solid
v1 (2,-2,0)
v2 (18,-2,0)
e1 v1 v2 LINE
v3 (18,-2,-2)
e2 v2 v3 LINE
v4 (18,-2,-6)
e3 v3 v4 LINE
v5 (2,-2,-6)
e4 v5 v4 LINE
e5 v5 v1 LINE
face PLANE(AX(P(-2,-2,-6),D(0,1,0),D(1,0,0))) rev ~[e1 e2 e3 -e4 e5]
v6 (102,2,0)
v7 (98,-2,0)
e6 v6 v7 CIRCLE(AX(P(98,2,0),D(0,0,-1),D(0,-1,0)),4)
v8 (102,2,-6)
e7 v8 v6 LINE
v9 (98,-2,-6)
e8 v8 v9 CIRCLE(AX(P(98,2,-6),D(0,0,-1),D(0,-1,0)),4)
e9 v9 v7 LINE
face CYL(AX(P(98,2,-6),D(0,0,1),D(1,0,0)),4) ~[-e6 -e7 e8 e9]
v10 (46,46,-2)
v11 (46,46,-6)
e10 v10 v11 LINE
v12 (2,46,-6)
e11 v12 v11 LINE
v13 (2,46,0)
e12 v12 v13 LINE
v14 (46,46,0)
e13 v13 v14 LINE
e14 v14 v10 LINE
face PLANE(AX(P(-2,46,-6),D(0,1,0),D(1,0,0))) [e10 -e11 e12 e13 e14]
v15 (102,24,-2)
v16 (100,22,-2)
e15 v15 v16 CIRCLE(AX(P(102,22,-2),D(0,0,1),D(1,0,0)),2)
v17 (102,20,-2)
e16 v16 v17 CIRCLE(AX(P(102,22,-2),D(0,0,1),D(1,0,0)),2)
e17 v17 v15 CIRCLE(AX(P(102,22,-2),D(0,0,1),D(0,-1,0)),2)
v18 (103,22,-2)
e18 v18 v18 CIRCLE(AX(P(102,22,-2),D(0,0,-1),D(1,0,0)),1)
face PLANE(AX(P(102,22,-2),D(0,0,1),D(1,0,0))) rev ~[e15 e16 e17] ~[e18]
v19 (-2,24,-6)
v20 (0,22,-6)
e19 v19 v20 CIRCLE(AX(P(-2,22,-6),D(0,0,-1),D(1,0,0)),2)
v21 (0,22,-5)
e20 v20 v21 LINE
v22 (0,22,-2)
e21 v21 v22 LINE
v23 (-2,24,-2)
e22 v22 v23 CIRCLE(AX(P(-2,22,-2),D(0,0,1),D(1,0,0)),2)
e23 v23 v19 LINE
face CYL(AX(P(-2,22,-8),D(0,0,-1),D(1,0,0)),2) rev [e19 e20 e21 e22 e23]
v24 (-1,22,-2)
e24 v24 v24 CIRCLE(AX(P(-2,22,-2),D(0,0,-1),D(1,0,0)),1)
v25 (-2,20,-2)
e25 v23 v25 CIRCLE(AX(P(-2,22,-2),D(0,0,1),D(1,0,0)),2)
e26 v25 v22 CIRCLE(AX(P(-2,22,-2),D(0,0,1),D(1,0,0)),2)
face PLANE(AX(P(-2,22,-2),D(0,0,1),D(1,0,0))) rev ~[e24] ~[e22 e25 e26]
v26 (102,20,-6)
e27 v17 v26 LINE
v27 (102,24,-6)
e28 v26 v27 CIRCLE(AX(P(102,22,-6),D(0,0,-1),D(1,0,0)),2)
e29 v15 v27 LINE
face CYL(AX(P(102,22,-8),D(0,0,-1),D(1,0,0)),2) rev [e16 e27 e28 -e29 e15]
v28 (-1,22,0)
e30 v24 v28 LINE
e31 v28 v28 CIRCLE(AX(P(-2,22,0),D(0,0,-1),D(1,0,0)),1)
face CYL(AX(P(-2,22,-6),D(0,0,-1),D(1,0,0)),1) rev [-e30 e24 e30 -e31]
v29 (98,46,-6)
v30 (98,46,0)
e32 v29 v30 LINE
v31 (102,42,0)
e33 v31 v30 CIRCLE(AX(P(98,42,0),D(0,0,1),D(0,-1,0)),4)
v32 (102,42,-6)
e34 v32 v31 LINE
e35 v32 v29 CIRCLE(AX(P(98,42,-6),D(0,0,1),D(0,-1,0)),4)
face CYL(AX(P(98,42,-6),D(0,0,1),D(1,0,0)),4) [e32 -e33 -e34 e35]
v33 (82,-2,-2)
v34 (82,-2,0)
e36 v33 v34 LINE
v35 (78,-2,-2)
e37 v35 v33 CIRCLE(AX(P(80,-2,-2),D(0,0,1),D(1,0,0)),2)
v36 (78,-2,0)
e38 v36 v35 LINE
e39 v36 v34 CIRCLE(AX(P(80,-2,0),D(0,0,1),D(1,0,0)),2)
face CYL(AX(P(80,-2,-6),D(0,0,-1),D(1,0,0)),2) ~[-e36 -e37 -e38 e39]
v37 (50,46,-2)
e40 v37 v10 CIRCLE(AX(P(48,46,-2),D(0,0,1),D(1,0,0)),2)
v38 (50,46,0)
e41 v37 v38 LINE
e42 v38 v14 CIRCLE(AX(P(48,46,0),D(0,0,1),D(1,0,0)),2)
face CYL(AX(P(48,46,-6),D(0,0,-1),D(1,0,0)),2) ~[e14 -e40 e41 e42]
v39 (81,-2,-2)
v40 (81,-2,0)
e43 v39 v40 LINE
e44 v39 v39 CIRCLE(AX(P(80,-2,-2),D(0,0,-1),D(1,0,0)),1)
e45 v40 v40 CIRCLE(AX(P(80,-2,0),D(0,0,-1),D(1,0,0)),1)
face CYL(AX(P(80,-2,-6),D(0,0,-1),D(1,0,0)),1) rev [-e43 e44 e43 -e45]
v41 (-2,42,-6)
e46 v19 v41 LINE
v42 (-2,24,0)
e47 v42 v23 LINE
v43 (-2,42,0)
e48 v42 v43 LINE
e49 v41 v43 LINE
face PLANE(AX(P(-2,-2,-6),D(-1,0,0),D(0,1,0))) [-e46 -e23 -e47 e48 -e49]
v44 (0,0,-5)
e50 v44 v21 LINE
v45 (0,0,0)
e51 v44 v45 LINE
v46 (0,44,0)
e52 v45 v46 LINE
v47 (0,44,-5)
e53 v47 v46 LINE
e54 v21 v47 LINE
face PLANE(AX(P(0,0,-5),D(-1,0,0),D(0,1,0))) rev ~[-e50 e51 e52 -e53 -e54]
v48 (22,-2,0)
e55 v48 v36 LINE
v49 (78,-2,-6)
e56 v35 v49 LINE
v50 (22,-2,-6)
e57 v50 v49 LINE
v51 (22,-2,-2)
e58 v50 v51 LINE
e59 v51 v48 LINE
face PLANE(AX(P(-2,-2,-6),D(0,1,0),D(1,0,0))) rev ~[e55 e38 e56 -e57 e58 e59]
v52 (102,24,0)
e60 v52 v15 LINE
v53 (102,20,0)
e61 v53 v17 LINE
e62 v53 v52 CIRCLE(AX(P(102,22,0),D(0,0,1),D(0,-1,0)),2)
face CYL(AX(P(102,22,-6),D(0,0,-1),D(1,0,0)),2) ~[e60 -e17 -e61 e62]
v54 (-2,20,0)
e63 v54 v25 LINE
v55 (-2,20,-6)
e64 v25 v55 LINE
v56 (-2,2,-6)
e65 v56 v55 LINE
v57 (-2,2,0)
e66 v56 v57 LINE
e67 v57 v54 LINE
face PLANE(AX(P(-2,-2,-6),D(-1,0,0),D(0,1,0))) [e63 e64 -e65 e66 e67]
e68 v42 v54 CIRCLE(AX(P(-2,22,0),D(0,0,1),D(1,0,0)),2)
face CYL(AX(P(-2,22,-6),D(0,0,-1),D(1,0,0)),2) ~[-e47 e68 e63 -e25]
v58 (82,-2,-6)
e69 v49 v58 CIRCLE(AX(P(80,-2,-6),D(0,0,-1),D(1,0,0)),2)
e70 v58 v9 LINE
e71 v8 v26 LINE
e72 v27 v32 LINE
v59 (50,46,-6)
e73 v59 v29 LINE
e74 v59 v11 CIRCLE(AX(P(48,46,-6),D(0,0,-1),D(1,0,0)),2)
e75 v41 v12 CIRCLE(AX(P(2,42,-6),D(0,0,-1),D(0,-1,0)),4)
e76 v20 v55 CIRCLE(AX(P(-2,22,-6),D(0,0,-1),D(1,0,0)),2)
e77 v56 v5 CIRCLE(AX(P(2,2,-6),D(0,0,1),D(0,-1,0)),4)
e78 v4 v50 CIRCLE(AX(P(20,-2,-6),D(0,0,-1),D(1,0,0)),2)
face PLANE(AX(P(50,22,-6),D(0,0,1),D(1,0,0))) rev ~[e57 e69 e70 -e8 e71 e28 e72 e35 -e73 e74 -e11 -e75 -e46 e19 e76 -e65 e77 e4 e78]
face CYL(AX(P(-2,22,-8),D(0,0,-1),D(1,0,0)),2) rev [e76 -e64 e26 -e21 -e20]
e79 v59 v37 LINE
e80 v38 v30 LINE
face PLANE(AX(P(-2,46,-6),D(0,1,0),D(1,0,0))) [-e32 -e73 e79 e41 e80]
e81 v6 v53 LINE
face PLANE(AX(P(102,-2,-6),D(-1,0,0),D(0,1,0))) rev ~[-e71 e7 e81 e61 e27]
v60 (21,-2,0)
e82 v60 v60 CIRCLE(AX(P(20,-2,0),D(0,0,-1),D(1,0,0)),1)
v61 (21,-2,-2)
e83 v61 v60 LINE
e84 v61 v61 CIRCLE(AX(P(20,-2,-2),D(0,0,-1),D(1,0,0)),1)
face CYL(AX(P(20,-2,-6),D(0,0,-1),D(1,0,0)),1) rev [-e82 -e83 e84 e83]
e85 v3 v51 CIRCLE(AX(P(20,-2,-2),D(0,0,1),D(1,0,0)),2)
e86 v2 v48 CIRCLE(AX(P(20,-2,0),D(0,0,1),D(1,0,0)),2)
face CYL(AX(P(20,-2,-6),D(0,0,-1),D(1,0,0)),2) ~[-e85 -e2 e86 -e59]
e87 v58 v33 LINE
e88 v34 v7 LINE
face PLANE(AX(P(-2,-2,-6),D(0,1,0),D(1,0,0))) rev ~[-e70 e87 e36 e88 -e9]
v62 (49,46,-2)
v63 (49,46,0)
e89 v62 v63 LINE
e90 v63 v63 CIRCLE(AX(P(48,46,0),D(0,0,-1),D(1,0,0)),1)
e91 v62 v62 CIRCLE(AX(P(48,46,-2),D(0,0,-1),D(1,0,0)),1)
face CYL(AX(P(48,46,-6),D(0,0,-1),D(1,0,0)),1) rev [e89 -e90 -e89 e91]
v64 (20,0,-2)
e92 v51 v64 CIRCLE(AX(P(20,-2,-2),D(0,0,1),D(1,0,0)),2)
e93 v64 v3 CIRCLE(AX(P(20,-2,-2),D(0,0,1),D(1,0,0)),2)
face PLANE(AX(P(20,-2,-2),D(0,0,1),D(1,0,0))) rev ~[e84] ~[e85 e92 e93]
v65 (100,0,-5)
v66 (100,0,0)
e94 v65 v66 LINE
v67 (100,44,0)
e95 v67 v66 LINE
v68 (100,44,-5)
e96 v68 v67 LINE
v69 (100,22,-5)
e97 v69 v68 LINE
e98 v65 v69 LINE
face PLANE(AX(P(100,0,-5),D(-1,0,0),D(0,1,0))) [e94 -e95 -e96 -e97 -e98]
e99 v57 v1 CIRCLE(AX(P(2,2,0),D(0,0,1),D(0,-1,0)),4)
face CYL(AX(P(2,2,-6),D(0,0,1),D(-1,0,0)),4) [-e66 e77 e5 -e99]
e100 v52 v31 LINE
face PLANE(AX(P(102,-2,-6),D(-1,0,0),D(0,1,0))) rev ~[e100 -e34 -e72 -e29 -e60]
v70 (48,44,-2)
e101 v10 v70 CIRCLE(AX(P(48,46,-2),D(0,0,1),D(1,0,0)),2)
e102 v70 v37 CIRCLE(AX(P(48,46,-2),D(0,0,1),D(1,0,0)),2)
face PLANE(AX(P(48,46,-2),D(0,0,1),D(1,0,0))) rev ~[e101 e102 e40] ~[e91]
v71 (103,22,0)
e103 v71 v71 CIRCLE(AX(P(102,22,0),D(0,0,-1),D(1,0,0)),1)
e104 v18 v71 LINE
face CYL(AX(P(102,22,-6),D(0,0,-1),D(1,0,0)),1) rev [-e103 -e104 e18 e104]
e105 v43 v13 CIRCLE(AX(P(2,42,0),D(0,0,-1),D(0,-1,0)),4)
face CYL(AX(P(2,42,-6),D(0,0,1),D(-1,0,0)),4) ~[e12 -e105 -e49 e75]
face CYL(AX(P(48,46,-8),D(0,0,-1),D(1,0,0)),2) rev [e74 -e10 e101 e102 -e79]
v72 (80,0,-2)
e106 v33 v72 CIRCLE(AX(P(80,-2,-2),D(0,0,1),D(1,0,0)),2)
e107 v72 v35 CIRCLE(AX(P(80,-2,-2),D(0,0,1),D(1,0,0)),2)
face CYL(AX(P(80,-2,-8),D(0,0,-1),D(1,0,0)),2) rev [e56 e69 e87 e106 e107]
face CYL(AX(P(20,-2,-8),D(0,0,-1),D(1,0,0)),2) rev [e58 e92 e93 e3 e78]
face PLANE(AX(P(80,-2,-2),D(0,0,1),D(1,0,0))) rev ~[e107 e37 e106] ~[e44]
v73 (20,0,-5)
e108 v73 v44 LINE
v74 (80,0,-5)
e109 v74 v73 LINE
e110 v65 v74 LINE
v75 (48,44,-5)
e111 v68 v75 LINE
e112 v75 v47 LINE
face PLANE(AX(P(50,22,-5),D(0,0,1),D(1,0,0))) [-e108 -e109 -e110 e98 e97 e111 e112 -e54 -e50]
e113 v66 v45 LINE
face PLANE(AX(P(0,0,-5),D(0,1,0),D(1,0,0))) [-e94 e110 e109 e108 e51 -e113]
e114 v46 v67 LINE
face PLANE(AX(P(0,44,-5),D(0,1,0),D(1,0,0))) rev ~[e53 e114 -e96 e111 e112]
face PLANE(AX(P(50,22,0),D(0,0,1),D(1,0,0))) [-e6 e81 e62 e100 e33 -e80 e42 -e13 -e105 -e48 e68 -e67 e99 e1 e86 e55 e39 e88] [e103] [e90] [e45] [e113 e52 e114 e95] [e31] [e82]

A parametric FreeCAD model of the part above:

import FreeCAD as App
import Part
import Sketcher


def edges_at(feature, points):
    """Names of the edges that pass closest to the given points."""
    edges = feature.Shape.Edges
    near = lambda p: min(range(len(edges)), key=lambda i: edges[i].distToShape(Part.Vertex(*p))[0])
    return sorted({f"Edge{near(p) + 1}" for p in points})

doc = App.newDocument("Part")
body = doc.addObject("PartDesign::Body", "Body")

# Sketch on XY plane
sketch1 = body.newObject("Sketcher::SketchObject", "Sketch")
sketch1.AttachmentSupport = (doc.getObject("XY_Plane"), [""])
sketch1.MapMode = "FlatFace"
sketch1.addGeometry(Part.Circle(App.Vector(-2, 22, 0), App.Vector(0, 0, 1), 2), False)
sketch1.addConstraint([
    Sketcher.Constraint("Diameter", 0, 4.0),
    Sketcher.Constraint("DistanceX", 0, 3, -1, 1, 2.0),
    Sketcher.Constraint("DistanceY", -1, 1, 0, 3, 22.0),
])
pad1 = body.newObject("PartDesign::Pad", "Pad")
pad1.Profile = sketch1
pad1.Length = 6
body2 = doc.addObject("PartDesign::Body", "Body001")

# Sketch on XY plane
sketch2 = body2.newObject("Sketcher::SketchObject", "Sketch001")
sketch2.AttachmentSupport = (doc.getObject("XY_Plane001"), [""])
sketch2.MapMode = "FlatFace"
sketch2.addGeometry(Part.Circle(App.Vector(48, 46, 0), App.Vector(0, 0, 1), 2), False)
sketch2.addConstraint([
    Sketcher.Constraint("Diameter", 0, 4.0),
    Sketcher.Constraint("DistanceX", -1, 1, 0, 3, 48.0),
    Sketcher.Constraint("DistanceY", -1, 1, 0, 3, 46.0),
])
pad2 = body2.newObject("PartDesign::Pad", "Pad001")
pad2.Profile = sketch2
pad2.Length = 6
body3 = doc.addObject("PartDesign::Body", "Body002")

# Sketch on XY plane
sketch3 = body3.newObject("Sketcher::SketchObject", "Sketch002")
sketch3.AttachmentSupport = (doc.getObject("XY_Plane002"), [""])
sketch3.MapMode = "FlatFace"
sketch3.addGeometry(Part.Circle(App.Vector(102, 22, 0), App.Vector(0, 0, 1), 2), False)
sketch3.addConstraint([
    Sketcher.Constraint("Diameter", 0, 4.0),
    Sketcher.Constraint("DistanceX", -1, 1, 0, 3, 102.0),
    Sketcher.Constraint("DistanceY", -1, 1, 0, 3, 22.0),
])
pad3 = body3.newObject("PartDesign::Pad", "Pad002")
pad3.Profile = sketch3
pad3.Length = 6
body4 = doc.addObject("PartDesign::Body", "Body003")

# Sketch on XY plane
sketch4 = body4.newObject("Sketcher::SketchObject", "Sketch003")
sketch4.AttachmentSupport = (doc.getObject("XY_Plane003"), [""])
sketch4.MapMode = "FlatFace"
sketch4.addGeometry(Part.Circle(App.Vector(80, -2, 0), App.Vector(0, 0, 1), 2), False)
sketch4.addConstraint([
    Sketcher.Constraint("Diameter", 0, 4.0),
    Sketcher.Constraint("DistanceX", -1, 1, 0, 3, 80.0),
    Sketcher.Constraint("DistanceY", 0, 3, -1, 1, 2.0),
])
pad4 = body4.newObject("PartDesign::Pad", "Pad003")
pad4.Profile = sketch4
pad4.Length = 6
body5 = doc.addObject("PartDesign::Body", "Body004")
body5.AllowCompound = True

# Sketch on XY plane
sketch5 = body5.newObject("Sketcher::SketchObject", "Sketch004")
sketch5.AttachmentSupport = (doc.getObject("XY_Plane004"), [""])
sketch5.MapMode = "FlatFace"
sketch5.addGeometry(Part.Circle(App.Vector(20, -2, 0), App.Vector(0, 0, 1), 2), False)
sketch5.addConstraint([
    Sketcher.Constraint("Diameter", 0, 4.0),
    Sketcher.Constraint("DistanceX", -1, 1, 0, 3, 20.0),
    Sketcher.Constraint("DistanceY", 0, 3, -1, 1, 2.0),
])
pad5 = body5.newObject("PartDesign::Pad", "Pad004")
pad5.Profile = sketch5
pad5.Length = 6
doc.recompute()

boolean = body5.newObject("PartDesign::Boolean", "Boolean")
boolean.Type = "Fuse"
boolean.addObjects([body])
doc.recompute()

boolean2 = body5.newObject("PartDesign::Boolean", "Boolean001")
boolean2.Type = "Fuse"
boolean2.addObjects([body2])
doc.recompute()

boolean3 = body5.newObject("PartDesign::Boolean", "Boolean002")
boolean3.Type = "Fuse"
boolean3.addObjects([body3])
doc.recompute()

boolean4 = body5.newObject("PartDesign::Boolean", "Boolean003")
boolean4.Type = "Fuse"
boolean4.addObjects([body4])
body6 = doc.addObject("PartDesign::Body", "Body005")
body6.AllowCompound = True
doc.recompute()

body5.Placement = App.Placement(App.Vector(0, 0, -8), App.Rotation(App.Vector(0, 0, 1), 0))
boolean5 = body6.newObject("PartDesign::Boolean", "Boolean004")
boolean5.Type = "Fuse"
boolean5.addObjects([body5])
body7 = doc.addObject("PartDesign::Body", "Body006")

# Sketch on XY plane
sketch6 = body7.newObject("Sketcher::SketchObject", "Sketch005")
sketch6.AttachmentSupport = (doc.getObject("XY_Plane006"), [""])
sketch6.MapMode = "FlatFace"
sketch6.addGeometry(Part.Circle(App.Vector(-2, 22, 0), App.Vector(0, 0, 1), 1), False)
sketch6.addConstraint([
    Sketcher.Constraint("Diameter", 0, 2.0),
    Sketcher.Constraint("DistanceX", 0, 3, -1, 1, 2.0),
    Sketcher.Constraint("DistanceY", -1, 1, 0, 3, 22.0),
])
pad6 = body7.newObject("PartDesign::Pad", "Pad005")
pad6.Profile = sketch6
pad6.Length = 13
body8 = doc.addObject("PartDesign::Body", "Body007")

# Sketch on XY plane
sketch7 = body8.newObject("Sketcher::SketchObject", "Sketch006")
sketch7.AttachmentSupport = (doc.getObject("XY_Plane007"), [""])
sketch7.MapMode = "FlatFace"
sketch7.addGeometry(Part.Circle(App.Vector(48, 46, 0), App.Vector(0, 0, 1), 1), False)
sketch7.addConstraint([
    Sketcher.Constraint("Diameter", 0, 2.0),
    Sketcher.Constraint("DistanceX", -1, 1, 0, 3, 48.0),
    Sketcher.Constraint("DistanceY", -1, 1, 0, 3, 46.0),
])
pad7 = body8.newObject("PartDesign::Pad", "Pad006")
pad7.Profile = sketch7
pad7.Length = 13
body9 = doc.addObject("PartDesign::Body", "Body008")

# Sketch on XY plane
sketch8 = body9.newObject("Sketcher::SketchObject", "Sketch007")
sketch8.AttachmentSupport = (doc.getObject("XY_Plane008"), [""])
sketch8.MapMode = "FlatFace"
sketch8.addGeometry(Part.Circle(App.Vector(102, 22, 0), App.Vector(0, 0, 1), 1), False)
sketch8.addConstraint([
    Sketcher.Constraint("Diameter", 0, 2.0),
    Sketcher.Constraint("DistanceX", -1, 1, 0, 3, 102.0),
    Sketcher.Constraint("DistanceY", -1, 1, 0, 3, 22.0),
])
pad8 = body9.newObject("PartDesign::Pad", "Pad007")
pad8.Profile = sketch8
pad8.Length = 13
body10 = doc.addObject("PartDesign::Body", "Body009")

# Sketch on XY plane
sketch9 = body10.newObject("Sketcher::SketchObject", "Sketch008")
sketch9.AttachmentSupport = (doc.getObject("XY_Plane009"), [""])
sketch9.MapMode = "FlatFace"
sketch9.addGeometry(Part.Circle(App.Vector(80, -2, 0), App.Vector(0, 0, 1), 1), False)
sketch9.addConstraint([
    Sketcher.Constraint("Diameter", 0, 2.0),
    Sketcher.Constraint("DistanceX", -1, 1, 0, 3, 80.0),
    Sketcher.Constraint("DistanceY", 0, 3, -1, 1, 2.0),
])
pad9 = body10.newObject("PartDesign::Pad", "Pad008")
pad9.Profile = sketch9
pad9.Length = 13
body11 = doc.addObject("PartDesign::Body", "Body010")
body11.AllowCompound = True

# Sketch on XY plane
sketch10 = body11.newObject("Sketcher::SketchObject", "Sketch009")
sketch10.AttachmentSupport = (doc.getObject("XY_Plane010"), [""])
sketch10.MapMode = "FlatFace"
sketch10.addGeometry(Part.Circle(App.Vector(20, -2, 0), App.Vector(0, 0, 1), 1), False)
sketch10.addConstraint([
    Sketcher.Constraint("Diameter", 0, 2.0),
    Sketcher.Constraint("DistanceX", -1, 1, 0, 3, 20.0),
    Sketcher.Constraint("DistanceY", 0, 3, -1, 1, 2.0),
])
pad10 = body11.newObject("PartDesign::Pad", "Pad009")
pad10.Profile = sketch10
pad10.Length = 13
doc.recompute()

boolean6 = body11.newObject("PartDesign::Boolean", "Boolean005")
boolean6.Type = "Fuse"
boolean6.addObjects([body7])
doc.recompute()

boolean7 = body11.newObject("PartDesign::Boolean", "Boolean006")
boolean7.Type = "Fuse"
boolean7.addObjects([body8])
doc.recompute()

boolean8 = body11.newObject("PartDesign::Boolean", "Boolean007")
boolean8.Type = "Fuse"
boolean8.addObjects([body9])
doc.recompute()

boolean9 = body11.newObject("PartDesign::Boolean", "Boolean008")
boolean9.Type = "Fuse"
boolean9.addObjects([body10])
body12 = doc.addObject("PartDesign::Body", "Body011")
body12.AllowCompound = True
doc.recompute()

body11.Placement = App.Placement(App.Vector(0, 0, -6), App.Rotation(App.Vector(0, 0, 1), 0))
boolean10 = body12.newObject("PartDesign::Boolean", "Boolean009")
boolean10.Type = "Fuse"
boolean10.addObjects([body11])
body13 = doc.addObject("PartDesign::Body", "Body012")

# Sketch on XY plane
sketch11 = body13.newObject("Sketcher::SketchObject", "Sketch010")
sketch11.AttachmentSupport = (doc.getObject("XY_Plane012"), [""])
sketch11.MapMode = "FlatFace"
sketch11.addGeometry([
    Part.LineSegment(App.Vector(2, 54, 0), App.Vector(2, 37, 0)),
    Part.LineSegment(App.Vector(2, 37, 0), App.Vector(12, 37, 0)),
    Part.LineSegment(App.Vector(12, 37, 0), App.Vector(12, 54, 0)),
    Part.LineSegment(App.Vector(12, 54, 0), App.Vector(2, 54, 0)),
], False)
sketch11.addConstraint([
    Sketcher.Constraint("Coincident", 0, 2, 1, 1),
    Sketcher.Constraint("Coincident", 1, 2, 2, 1),
    Sketcher.Constraint("Coincident", 2, 2, 3, 1),
    Sketcher.Constraint("Coincident", 3, 2, 0, 1),
    Sketcher.Constraint("Vertical", 0),
    Sketcher.Constraint("Horizontal", 1),
    Sketcher.Constraint("Vertical", 2),
    Sketcher.Constraint("Horizontal", 3),
    Sketcher.Constraint("DistanceX", 1, 1, 1, 2, 10.0),
    Sketcher.Constraint("DistanceY", 0, 2, 0, 1, 17.0),
    Sketcher.Constraint("DistanceY", -1, 1, 0, 2, 37.0),
    Sketcher.Constraint("DistanceX", -1, 1, 0, 2, 1.6),
])
pad11 = body13.newObject("PartDesign::Pad", "Pad010")
pad11.Profile = sketch11
pad11.Length = 8
body14 = doc.addObject("PartDesign::Body", "Body013")

# Sketch on XY plane
sketch12 = body14.newObject("Sketcher::SketchObject", "Sketch011")
sketch12.AttachmentSupport = (doc.getObject("XY_Plane013"), [""])
sketch12.MapMode = "FlatFace"
sketch12.addGeometry([
    Part.LineSegment(App.Vector(14, 54, 0), App.Vector(14, 37, 0)),
    Part.LineSegment(App.Vector(14, 37, 0), App.Vector(24, 37, 0)),
    Part.LineSegment(App.Vector(24, 37, 0), App.Vector(24, 54, 0)),
    Part.LineSegment(App.Vector(24, 54, 0), App.Vector(14, 54, 0)),
], False)
sketch12.addConstraint([
    Sketcher.Constraint("Coincident", 0, 2, 1, 1),
    Sketcher.Constraint("Coincident", 1, 2, 2, 1),
    Sketcher.Constraint("Coincident", 2, 2, 3, 1),
    Sketcher.Constraint("Coincident", 3, 2, 0, 1),
    Sketcher.Constraint("Vertical", 0),
    Sketcher.Constraint("Horizontal", 1),
    Sketcher.Constraint("Vertical", 2),
    Sketcher.Constraint("Horizontal", 3),
    Sketcher.Constraint("DistanceX", 1, 1, 1, 2, 10.0),
    Sketcher.Constraint("DistanceY", 0, 2, 0, 1, 17.0),
    Sketcher.Constraint("DistanceY", -1, 1, 0, 2, 37.0),
    Sketcher.Constraint("DistanceX", -1, 1, 0, 2, 13.8),
])
pad12 = body14.newObject("PartDesign::Pad", "Pad011")
pad12.Profile = sketch12
pad12.Length = 8
body15 = doc.addObject("PartDesign::Body", "Body014")

# Sketch on XY plane
sketch13 = body15.newObject("Sketcher::SketchObject", "Sketch012")
sketch13.AttachmentSupport = (doc.getObject("XY_Plane014"), [""])
sketch13.MapMode = "FlatFace"
sketch13.addGeometry([
    Part.LineSegment(App.Vector(26, 54, 0), App.Vector(26, 37, 0)),
    Part.LineSegment(App.Vector(26, 37, 0), App.Vector(36, 37, 0)),
    Part.LineSegment(App.Vector(36, 37, 0), App.Vector(36, 54, 0)),
    Part.LineSegment(App.Vector(36, 54, 0), App.Vector(26, 54, 0)),
], False)
sketch13.addConstraint([
    Sketcher.Constraint("Coincident", 0, 2, 1, 1),
    Sketcher.Constraint("Coincident", 1, 2, 2, 1),
    Sketcher.Constraint("Coincident", 2, 2, 3, 1),
    Sketcher.Constraint("Coincident", 3, 2, 0, 1),
    Sketcher.Constraint("Vertical", 0),
    Sketcher.Constraint("Horizontal", 1),
    Sketcher.Constraint("Vertical", 2),
    Sketcher.Constraint("Horizontal", 3),
    Sketcher.Constraint("DistanceX", 1, 1, 1, 2, 10.0),
    Sketcher.Constraint("DistanceY", 0, 2, 0, 1, 17.0),
    Sketcher.Constraint("DistanceY", -1, 1, 0, 2, 37.0),
    Sketcher.Constraint("DistanceX", -1, 1, 0, 2, 25.8),
])
pad13 = body15.newObject("PartDesign::Pad", "Pad012")
pad13.Profile = sketch13
pad13.Length = 8
body16 = doc.addObject("PartDesign::Body", "Body015")

# Sketch on XY plane
sketch14 = body16.newObject("Sketcher::SketchObject", "Sketch013")
sketch14.AttachmentSupport = (doc.getObject("XY_Plane015"), [""])
sketch14.MapMode = "FlatFace"
sketch14.addGeometry([
    Part.LineSegment(App.Vector(59, 54, 0), App.Vector(59, 37, 0)),
    Part.LineSegment(App.Vector(59, 37, 0), App.Vector(69, 37, 0)),
    Part.LineSegment(App.Vector(69, 37, 0), App.Vector(69, 54, 0)),
    Part.LineSegment(App.Vector(69, 54, 0), App.Vector(59, 54, 0)),
], False)
sketch14.addConstraint([
    Sketcher.Constraint("Coincident", 0, 2, 1, 1),
    Sketcher.Constraint("Coincident", 1, 2, 2, 1),
    Sketcher.Constraint("Coincident", 2, 2, 3, 1),
    Sketcher.Constraint("Coincident", 3, 2, 0, 1),
    Sketcher.Constraint("Vertical", 0),
    Sketcher.Constraint("Horizontal", 1),
    Sketcher.Constraint("Vertical", 2),
    Sketcher.Constraint("Horizontal", 3),
    Sketcher.Constraint("DistanceX", 1, 1, 1, 2, 10.0),
    Sketcher.Constraint("DistanceY", 0, 2, 0, 1, 17.0),
    Sketcher.Constraint("DistanceY", -1, 1, 0, 2, 37.0),
    Sketcher.Constraint("DistanceX", -1, 1, 0, 2, 58.8),
])
pad14 = body16.newObject("PartDesign::Pad", "Pad013")
pad14.Profile = sketch14
pad14.Length = 8
body17 = doc.addObject("PartDesign::Body", "Body016")

# Sketch on XY plane
sketch15 = body17.newObject("Sketcher::SketchObject", "Sketch014")
sketch15.AttachmentSupport = (doc.getObject("XY_Plane016"), [""])
sketch15.MapMode = "FlatFace"
sketch15.addGeometry([
    Part.LineSegment(App.Vector(111, 42, 0), App.Vector(94, 42, 0)),
    Part.LineSegment(App.Vector(94, 42, 0), App.Vector(94, 32, 0)),
    Part.LineSegment(App.Vector(94, 32, 0), App.Vector(111, 32, 0)),
    Part.LineSegment(App.Vector(111, 32, 0), App.Vector(111, 42, 0)),
], False)
sketch15.addConstraint([
    Sketcher.Constraint("Coincident", 0, 2, 1, 1),
    Sketcher.Constraint("Coincident", 1, 2, 2, 1),
    Sketcher.Constraint("Coincident", 2, 2, 3, 1),
    Sketcher.Constraint("Coincident", 3, 2, 0, 1),
    Sketcher.Constraint("Horizontal", 0),
    Sketcher.Constraint("Vertical", 1),
    Sketcher.Constraint("Horizontal", 2),
    Sketcher.Constraint("Vertical", 3),
    Sketcher.Constraint("DistanceX", 0, 2, 0, 1, 17.0),
    Sketcher.Constraint("DistanceY", 1, 2, 1, 1, 10.0),
    Sketcher.Constraint("DistanceY", -1, 1, 0, 2, 42.0),
    Sketcher.Constraint("DistanceX", -1, 1, 0, 2, 93.8),
])
pad15 = body17.newObject("PartDesign::Pad", "Pad014")
pad15.Profile = sketch15
pad15.Length = 8
body18 = doc.addObject("PartDesign::Body", "Body017")

# Sketch on XY plane
sketch16 = body18.newObject("Sketcher::SketchObject", "Sketch015")
sketch16.AttachmentSupport = (doc.getObject("XY_Plane017"), [""])
sketch16.MapMode = "FlatFace"
sketch16.AttachmentOffset = App.Placement(App.Vector(0, 0, -5), App.Rotation())
sketch16.addGeometry([
    Part.LineSegment(App.Vector(0, 44, 0), App.Vector(0, 0, 0)),
    Part.LineSegment(App.Vector(0, 0, 0), App.Vector(100, 0, 0)),
    Part.LineSegment(App.Vector(100, 0, 0), App.Vector(100, 44, 0)),
    Part.LineSegment(App.Vector(100, 44, 0), App.Vector(0, 44, 0)),
], False)
sketch16.addConstraint([
    Sketcher.Constraint("Coincident", 0, 2, 1, 1),
    Sketcher.Constraint("Coincident", 1, 2, 2, 1),
    Sketcher.Constraint("Coincident", 2, 2, 3, 1),
    Sketcher.Constraint("Coincident", 3, 2, 0, 1),
    Sketcher.Constraint("Vertical", 0),
    Sketcher.Constraint("Horizontal", 1),
    Sketcher.Constraint("Vertical", 2),
    Sketcher.Constraint("Horizontal", 3),
    Sketcher.Constraint("Coincident", 0, 2, -1, 1),
    Sketcher.Constraint("DistanceX", 1, 1, 1, 2, 100.0),
    Sketcher.Constraint("DistanceY", 0, 2, 0, 1, 44.0),
])
pad16 = body18.newObject("PartDesign::Pad", "Pad015")
pad16.Profile = sketch16
pad16.Length = 16.5
doc.recompute()

boolean11 = body18.newObject("PartDesign::Boolean", "Boolean010")
boolean11.Type = "Fuse"
boolean11.addObjects([body13])
doc.recompute()

boolean12 = body18.newObject("PartDesign::Boolean", "Boolean011")
boolean12.Type = "Fuse"
boolean12.addObjects([body14])
doc.recompute()

boolean13 = body18.newObject("PartDesign::Boolean", "Boolean012")
boolean13.Type = "Fuse"
boolean13.addObjects([body15])
doc.recompute()

boolean14 = body18.newObject("PartDesign::Boolean", "Boolean013")
boolean14.Type = "Fuse"
boolean14.addObjects([body16])
doc.recompute()

boolean15 = body18.newObject("PartDesign::Boolean", "Boolean014")
boolean15.Type = "Fuse"
boolean15.addObjects([body17])
body19 = doc.addObject("PartDesign::Body", "Body018")

# Sketch on XY plane
sketch17 = body19.newObject("Sketcher::SketchObject", "Sketch016")
sketch17.AttachmentSupport = (doc.getObject("XY_Plane018"), [""])
sketch17.MapMode = "FlatFace"
sketch17.AttachmentOffset = App.Placement(App.Vector(0, 0, -6), App.Rotation())
sketch17.addGeometry([
    Part.LineSegment(App.Vector(-2, 46, 0), App.Vector(-2, -2, 0)),
    Part.LineSegment(App.Vector(-2, -2, 0), App.Vector(102, -2, 0)),
    Part.LineSegment(App.Vector(102, -2, 0), App.Vector(102, 46, 0)),
    Part.LineSegment(App.Vector(102, 46, 0), App.Vector(-2, 46, 0)),
], False)
sketch17.addConstraint([
    Sketcher.Constraint("Coincident", 0, 2, 1, 1),
    Sketcher.Constraint("Coincident", 1, 2, 2, 1),
    Sketcher.Constraint("Coincident", 2, 2, 3, 1),
    Sketcher.Constraint("Coincident", 3, 2, 0, 1),
    Sketcher.Constraint("Vertical", 0),
    Sketcher.Constraint("Horizontal", 1),
    Sketcher.Constraint("Vertical", 2),
    Sketcher.Constraint("Horizontal", 3),
    Sketcher.Constraint("DistanceX", 1, 1, 1, 2, 104.0),
    Sketcher.Constraint("DistanceY", 0, 2, 0, 1, 48.0),
    Sketcher.Constraint("DistanceX", 0, 2, -1, 1, 2.0),
    Sketcher.Constraint("DistanceY", 0, 2, -1, 1, 2.0),
])
pad17 = body19.newObject("PartDesign::Pad", "Pad016")
pad17.Profile = sketch17
pad17.Length = 6
doc.recompute()

boolean16 = body19.newObject("PartDesign::Boolean", "Boolean015")
boolean16.Type = "Cut"
boolean16.addObjects([body18])
doc.recompute()

fillet = body19.newObject("PartDesign::Fillet", "Fillet")
fillet.Base = (boolean16, edges_at(boolean16, [
    (-2, -2, -3),
    (-2, 46, -3),
    (102, -2, -3),
    (102, 46, -3),
]))
fillet.Radius = 4
body20 = doc.addObject("PartDesign::Body", "Body019")

# Sketch on XY plane
sketch18 = body20.newObject("Sketcher::SketchObject", "Sketch017")
sketch18.AttachmentSupport = (doc.getObject("XY_Plane019"), [""])
sketch18.MapMode = "FlatFace"
sketch18.addGeometry(Part.Circle(App.Vector(-2, 22, 0), App.Vector(0, 0, 1), 2), False)
sketch18.addConstraint([
    Sketcher.Constraint("Diameter", 0, 4.0),
    Sketcher.Constraint("DistanceX", 0, 3, -1, 1, 2.0),
    Sketcher.Constraint("DistanceY", -1, 1, 0, 3, 22.0),
])
pad18 = body20.newObject("PartDesign::Pad", "Pad017")
pad18.Profile = sketch18
pad18.Length = 6
body21 = doc.addObject("PartDesign::Body", "Body020")

# Sketch on XY plane
sketch19 = body21.newObject("Sketcher::SketchObject", "Sketch018")
sketch19.AttachmentSupport = (doc.getObject("XY_Plane020"), [""])
sketch19.MapMode = "FlatFace"
sketch19.addGeometry(Part.Circle(App.Vector(48, 46, 0), App.Vector(0, 0, 1), 2), False)
sketch19.addConstraint([
    Sketcher.Constraint("Diameter", 0, 4.0),
    Sketcher.Constraint("DistanceX", -1, 1, 0, 3, 48.0),
    Sketcher.Constraint("DistanceY", -1, 1, 0, 3, 46.0),
])
pad19 = body21.newObject("PartDesign::Pad", "Pad018")
pad19.Profile = sketch19
pad19.Length = 6
body22 = doc.addObject("PartDesign::Body", "Body021")

# Sketch on XY plane
sketch20 = body22.newObject("Sketcher::SketchObject", "Sketch019")
sketch20.AttachmentSupport = (doc.getObject("XY_Plane021"), [""])
sketch20.MapMode = "FlatFace"
sketch20.addGeometry(Part.Circle(App.Vector(102, 22, 0), App.Vector(0, 0, 1), 2), False)
sketch20.addConstraint([
    Sketcher.Constraint("Diameter", 0, 4.0),
    Sketcher.Constraint("DistanceX", -1, 1, 0, 3, 102.0),
    Sketcher.Constraint("DistanceY", -1, 1, 0, 3, 22.0),
])
pad20 = body22.newObject("PartDesign::Pad", "Pad019")
pad20.Profile = sketch20
pad20.Length = 6
body23 = doc.addObject("PartDesign::Body", "Body022")

# Sketch on XY plane
sketch21 = body23.newObject("Sketcher::SketchObject", "Sketch020")
sketch21.AttachmentSupport = (doc.getObject("XY_Plane022"), [""])
sketch21.MapMode = "FlatFace"
sketch21.addGeometry(Part.Circle(App.Vector(80, -2, 0), App.Vector(0, 0, 1), 2), False)
sketch21.addConstraint([
    Sketcher.Constraint("Diameter", 0, 4.0),
    Sketcher.Constraint("DistanceX", -1, 1, 0, 3, 80.0),
    Sketcher.Constraint("DistanceY", 0, 3, -1, 1, 2.0),
])
pad21 = body23.newObject("PartDesign::Pad", "Pad020")
pad21.Profile = sketch21
pad21.Length = 6
body24 = doc.addObject("PartDesign::Body", "Body023")
body24.AllowCompound = True

# Sketch on XY plane
sketch22 = body24.newObject("Sketcher::SketchObject", "Sketch021")
sketch22.AttachmentSupport = (doc.getObject("XY_Plane023"), [""])
sketch22.MapMode = "FlatFace"
sketch22.addGeometry(Part.Circle(App.Vector(20, -2, 0), App.Vector(0, 0, 1), 2), False)
sketch22.addConstraint([
    Sketcher.Constraint("Diameter", 0, 4.0),
    Sketcher.Constraint("DistanceX", -1, 1, 0, 3, 20.0),
    Sketcher.Constraint("DistanceY", 0, 3, -1, 1, 2.0),
])
pad22 = body24.newObject("PartDesign::Pad", "Pad021")
pad22.Profile = sketch22
pad22.Length = 6
doc.recompute()

boolean17 = body24.newObject("PartDesign::Boolean", "Boolean016")
boolean17.Type = "Fuse"
boolean17.addObjects([body20])
doc.recompute()

boolean18 = body24.newObject("PartDesign::Boolean", "Boolean017")
boolean18.Type = "Fuse"
boolean18.addObjects([body21])
doc.recompute()

boolean19 = body24.newObject("PartDesign::Boolean", "Boolean018")
boolean19.Type = "Fuse"
boolean19.addObjects([body22])
doc.recompute()

boolean20 = body24.newObject("PartDesign::Boolean", "Boolean019")
boolean20.Type = "Fuse"
boolean20.addObjects([body23])
body25 = doc.addObject("PartDesign::Body", "Body024")
body25.AllowCompound = True
doc.recompute()

body24.Placement = App.Placement(App.Vector(0, 0, -6), App.Rotation(App.Vector(0, 0, 1), 0))
boolean21 = body25.newObject("PartDesign::Boolean", "Boolean020")
boolean21.Type = "Fuse"
boolean21.addObjects([body24])
doc.recompute()

boolean22 = body25.newObject("PartDesign::Boolean", "Boolean021")
boolean22.Type = "Fuse"
boolean22.addObjects([body19])
doc.recompute()

boolean23 = body25.newObject("PartDesign::Boolean", "Boolean022")
boolean23.Type = "Cut"
boolean23.addObjects([body12])
doc.recompute()

boolean24 = body25.newObject("PartDesign::Boolean", "Boolean023")
boolean24.Type = "Cut"
boolean24.addObjects([body6])

doc.recompute()
